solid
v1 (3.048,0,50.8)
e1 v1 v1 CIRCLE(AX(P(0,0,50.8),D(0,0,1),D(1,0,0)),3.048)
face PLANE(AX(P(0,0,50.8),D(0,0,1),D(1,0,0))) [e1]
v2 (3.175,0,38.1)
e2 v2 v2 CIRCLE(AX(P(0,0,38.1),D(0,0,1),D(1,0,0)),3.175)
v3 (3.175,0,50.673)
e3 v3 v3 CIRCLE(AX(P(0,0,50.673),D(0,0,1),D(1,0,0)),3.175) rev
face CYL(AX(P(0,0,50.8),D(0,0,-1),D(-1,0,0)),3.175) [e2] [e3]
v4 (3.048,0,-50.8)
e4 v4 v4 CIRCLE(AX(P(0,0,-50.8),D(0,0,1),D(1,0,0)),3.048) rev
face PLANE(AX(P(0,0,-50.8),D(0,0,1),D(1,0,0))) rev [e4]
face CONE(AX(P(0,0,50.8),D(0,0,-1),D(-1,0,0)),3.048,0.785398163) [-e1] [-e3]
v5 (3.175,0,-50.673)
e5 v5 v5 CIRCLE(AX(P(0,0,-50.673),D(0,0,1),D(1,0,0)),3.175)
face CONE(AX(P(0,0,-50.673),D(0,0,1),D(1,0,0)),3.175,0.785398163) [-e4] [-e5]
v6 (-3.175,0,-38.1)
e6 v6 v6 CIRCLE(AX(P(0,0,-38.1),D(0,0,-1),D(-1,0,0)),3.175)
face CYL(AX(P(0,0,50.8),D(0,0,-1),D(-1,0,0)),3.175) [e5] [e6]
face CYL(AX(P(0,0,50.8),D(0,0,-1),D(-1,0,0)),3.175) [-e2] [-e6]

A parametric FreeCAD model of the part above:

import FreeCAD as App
import Part
import Sketcher

V = App.Vector
Q = App.Units.Quantity


def edges_at(feature, points):
    """Names of the edges that pass closest to the given points."""
    edges = feature.Shape.Edges
    near = lambda p: min(range(len(edges)), key=lambda i: edges[i].distToShape(Part.Vertex(*p))[0])
    return sorted({f"Edge{near(p) + 1}" for p in points})

doc = App.newDocument("Part")
params = doc.addObject("Spreadsheet::Sheet", "Params")
for row, (alias, value) in enumerate([
    ("sketch1_diameter", "0.25 in"),
    ("pad1_length", "2 in"),
    ("pad1_length2", "2 in"),
    ("chamfer_size", "0.005 in"),
], start=1):
    params.set(f"A{row}", alias)
    params.set(f"B{row}", "=" + value)
    params.setAlias(f"B{row}", alias)

body = doc.addObject("PartDesign::Body", "Body")

sketch1 = body.newObject("Sketcher::SketchObject", "Sketch")
sketch1.AttachmentSupport = (doc.getObject("XY_Plane"), [""])
sketch1.MapMode = "FlatFace"
sketch1.addGeometry(Part.Circle(V(0, 0, 0), V(0, 0, 1), 3.2), False)
sketch1.addConstraint([
    Sketcher.Constraint("Coincident", 0, 3, -1, 1),
    Sketcher.Constraint("Diameter", 0, Q("0.25 in")),
])
sketch1.setExpression("Constraints[1]", "Params.sketch1_diameter")
pad1 = body.newObject("PartDesign::Pad", "Pad")
pad1.Profile = sketch1
pad1.Type = "TwoLengths"
pad1.setExpression("Length", "Params.pad1_length")
pad1.setExpression("Length2", "Params.pad1_length2")
doc.recompute()

chamfer = body.newObject("PartDesign::Chamfer", "Chamfer")
chamfer.Base = (pad1, edges_at(pad1, [(-3.175, 0, -50.8), (-3.175, 0, 50.8)]))
chamfer.setExpression("Size", "Params.chamfer_size")

doc.recompute()
